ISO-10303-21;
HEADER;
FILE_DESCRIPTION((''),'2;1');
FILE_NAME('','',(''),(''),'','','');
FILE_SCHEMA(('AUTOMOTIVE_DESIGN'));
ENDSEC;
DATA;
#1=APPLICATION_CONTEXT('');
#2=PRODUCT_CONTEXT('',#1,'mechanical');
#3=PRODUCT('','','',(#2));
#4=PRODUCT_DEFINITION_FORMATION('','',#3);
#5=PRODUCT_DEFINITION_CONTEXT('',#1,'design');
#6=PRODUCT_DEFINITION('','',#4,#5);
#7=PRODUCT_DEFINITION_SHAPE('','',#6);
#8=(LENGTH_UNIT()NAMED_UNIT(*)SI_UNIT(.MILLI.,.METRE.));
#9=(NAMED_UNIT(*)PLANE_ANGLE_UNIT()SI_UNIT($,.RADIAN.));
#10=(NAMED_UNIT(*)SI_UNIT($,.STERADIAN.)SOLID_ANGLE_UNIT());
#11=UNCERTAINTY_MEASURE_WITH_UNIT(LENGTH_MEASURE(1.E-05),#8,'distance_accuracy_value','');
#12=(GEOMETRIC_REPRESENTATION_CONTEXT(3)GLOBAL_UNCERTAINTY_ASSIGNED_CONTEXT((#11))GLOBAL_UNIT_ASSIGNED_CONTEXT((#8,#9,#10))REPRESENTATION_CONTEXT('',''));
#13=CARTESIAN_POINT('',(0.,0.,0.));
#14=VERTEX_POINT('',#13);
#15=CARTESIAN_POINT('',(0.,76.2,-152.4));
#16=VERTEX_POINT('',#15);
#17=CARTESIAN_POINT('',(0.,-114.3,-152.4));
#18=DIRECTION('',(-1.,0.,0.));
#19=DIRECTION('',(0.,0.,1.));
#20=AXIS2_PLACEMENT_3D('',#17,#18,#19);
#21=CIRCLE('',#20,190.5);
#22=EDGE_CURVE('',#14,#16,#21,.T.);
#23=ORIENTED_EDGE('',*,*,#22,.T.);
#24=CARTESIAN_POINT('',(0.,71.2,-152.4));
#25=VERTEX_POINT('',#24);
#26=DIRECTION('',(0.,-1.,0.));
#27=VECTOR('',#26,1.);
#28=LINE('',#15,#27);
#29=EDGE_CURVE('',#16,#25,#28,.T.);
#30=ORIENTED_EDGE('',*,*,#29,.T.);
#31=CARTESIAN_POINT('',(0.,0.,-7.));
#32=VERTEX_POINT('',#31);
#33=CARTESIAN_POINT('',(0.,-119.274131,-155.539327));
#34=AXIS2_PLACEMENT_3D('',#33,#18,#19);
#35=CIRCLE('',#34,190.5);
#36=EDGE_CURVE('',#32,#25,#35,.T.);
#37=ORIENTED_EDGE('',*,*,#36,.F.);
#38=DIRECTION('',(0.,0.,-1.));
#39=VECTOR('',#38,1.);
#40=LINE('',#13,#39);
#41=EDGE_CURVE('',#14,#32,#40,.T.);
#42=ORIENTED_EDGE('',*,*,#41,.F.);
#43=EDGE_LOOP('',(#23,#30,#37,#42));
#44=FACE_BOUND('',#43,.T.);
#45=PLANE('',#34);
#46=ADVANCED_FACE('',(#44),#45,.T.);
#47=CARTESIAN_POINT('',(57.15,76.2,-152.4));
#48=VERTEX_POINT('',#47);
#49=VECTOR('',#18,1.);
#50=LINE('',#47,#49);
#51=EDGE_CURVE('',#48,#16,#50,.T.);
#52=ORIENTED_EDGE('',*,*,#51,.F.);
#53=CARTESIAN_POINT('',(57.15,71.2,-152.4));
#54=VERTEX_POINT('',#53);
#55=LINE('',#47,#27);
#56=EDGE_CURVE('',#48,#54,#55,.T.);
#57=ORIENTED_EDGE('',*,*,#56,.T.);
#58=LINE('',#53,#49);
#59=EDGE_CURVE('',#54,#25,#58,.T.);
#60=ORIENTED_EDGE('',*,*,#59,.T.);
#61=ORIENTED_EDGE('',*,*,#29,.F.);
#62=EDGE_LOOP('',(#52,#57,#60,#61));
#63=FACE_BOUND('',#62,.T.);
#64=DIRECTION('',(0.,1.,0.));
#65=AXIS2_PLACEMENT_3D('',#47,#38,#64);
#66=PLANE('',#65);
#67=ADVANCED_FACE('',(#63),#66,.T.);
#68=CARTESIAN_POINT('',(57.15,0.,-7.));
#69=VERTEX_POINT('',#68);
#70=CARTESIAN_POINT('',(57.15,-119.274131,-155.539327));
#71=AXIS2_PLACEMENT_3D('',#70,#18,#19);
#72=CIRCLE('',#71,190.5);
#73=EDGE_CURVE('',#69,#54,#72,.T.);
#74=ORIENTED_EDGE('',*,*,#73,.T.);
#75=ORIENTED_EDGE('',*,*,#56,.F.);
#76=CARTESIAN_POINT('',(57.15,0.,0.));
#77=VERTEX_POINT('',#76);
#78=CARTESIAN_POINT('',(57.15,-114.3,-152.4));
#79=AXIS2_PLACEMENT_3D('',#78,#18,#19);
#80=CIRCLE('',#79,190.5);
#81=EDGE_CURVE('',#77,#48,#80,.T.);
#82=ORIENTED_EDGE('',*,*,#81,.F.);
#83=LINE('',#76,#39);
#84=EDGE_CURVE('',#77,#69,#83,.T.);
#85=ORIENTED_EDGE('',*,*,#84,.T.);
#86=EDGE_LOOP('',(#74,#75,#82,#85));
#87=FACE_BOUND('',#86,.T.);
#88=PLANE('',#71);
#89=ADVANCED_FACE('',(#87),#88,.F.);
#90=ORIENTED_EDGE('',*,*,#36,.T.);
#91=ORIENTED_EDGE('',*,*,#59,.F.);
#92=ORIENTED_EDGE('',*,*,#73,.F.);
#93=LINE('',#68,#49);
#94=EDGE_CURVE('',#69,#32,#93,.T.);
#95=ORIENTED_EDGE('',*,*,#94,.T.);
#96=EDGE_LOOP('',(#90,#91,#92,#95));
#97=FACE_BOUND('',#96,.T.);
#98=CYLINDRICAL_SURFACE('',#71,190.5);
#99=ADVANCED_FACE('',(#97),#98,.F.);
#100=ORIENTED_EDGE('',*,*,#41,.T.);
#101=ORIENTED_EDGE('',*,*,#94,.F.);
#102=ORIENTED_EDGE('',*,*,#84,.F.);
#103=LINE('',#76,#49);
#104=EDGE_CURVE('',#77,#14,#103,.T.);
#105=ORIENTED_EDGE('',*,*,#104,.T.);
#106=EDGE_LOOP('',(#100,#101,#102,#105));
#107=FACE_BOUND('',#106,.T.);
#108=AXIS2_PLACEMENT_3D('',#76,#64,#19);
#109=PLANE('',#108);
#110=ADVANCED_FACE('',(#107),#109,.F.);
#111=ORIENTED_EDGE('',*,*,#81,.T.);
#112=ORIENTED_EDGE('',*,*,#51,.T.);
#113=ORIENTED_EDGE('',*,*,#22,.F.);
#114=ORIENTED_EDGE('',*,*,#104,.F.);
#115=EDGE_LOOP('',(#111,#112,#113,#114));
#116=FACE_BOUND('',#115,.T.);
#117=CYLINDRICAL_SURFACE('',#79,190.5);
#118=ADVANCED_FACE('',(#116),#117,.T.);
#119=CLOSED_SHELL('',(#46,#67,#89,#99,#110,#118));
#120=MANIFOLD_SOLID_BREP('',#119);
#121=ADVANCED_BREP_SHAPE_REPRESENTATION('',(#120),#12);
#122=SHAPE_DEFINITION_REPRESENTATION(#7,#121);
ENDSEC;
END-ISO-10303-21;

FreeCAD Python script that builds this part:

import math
import FreeCAD as App
import Part
import Sketcher

doc = App.newDocument("Part")
body = doc.addObject("PartDesign::Body", "Body")

# Sketch on YZ plane
sketch1 = doc.addObject("Sketcher::SketchObject", "Sketch")
body.addObject(sketch1)
sketch1.AttachmentSupport = (doc.YZ_Plane, [""])
sketch1.MapMode = "FlatFace"
sketch1.addGeometry(Part.LineSegment(App.Vector(71.2, -152.4, 0), App.Vector(76.2, -152.4, 0)), False)
sketch1.addGeometry(Part.ArcOfCircle(Part.Circle(App.Vector(-114.3, -152.4, 0), App.Vector(0, 0, 1), 190.5), math.radians(0), math.radians(53.130102)), False)
sketch1.addGeometry(Part.LineSegment(App.Vector(0, 0, 0), App.Vector(0, -7, 0)), False)
sketch1.addGeometry(Part.ArcOfCircle(Part.Circle(App.Vector(-119.274131, -155.539327, 0), App.Vector(0, 0, 1), 190.5), math.radians(0.944243), math.radians(51.236227)), False)
sketch1.addConstraint(Sketcher.Constraint("Coincident", 0, 2, 1, 1))
sketch1.addConstraint(Sketcher.Constraint("Coincident", 1, 2, 2, 1))
sketch1.addConstraint(Sketcher.Constraint("Coincident", 2, 2, 3, 2))
sketch1.addConstraint(Sketcher.Constraint("Coincident", 3, 1, 0, 1))
sketch1.addConstraint(Sketcher.Constraint("Horizontal", 0))
sketch1.addConstraint(Sketcher.Constraint("Vertical", 2))
sketch1.addConstraint(Sketcher.Constraint("Coincident", 1, 2, -1, 1))
sketch1.addConstraint(Sketcher.Constraint("Equal", 1, 3))
sketch1.addConstraint(Sketcher.Constraint("Horizontal", 1, 3, 0, 2))
sketch1.addConstraint(Sketcher.Constraint("Radius", 1, 190.5))
sketch1.addConstraint(Sketcher.Constraint("DistanceX", 0, 1, 0, 2, 5.0))
sketch1.addConstraint(Sketcher.Constraint("DistanceY", 2, 2, 2, 1, 7.0))
sketch1.addConstraint(Sketcher.Constraint("DistanceX", 1, 3, -1, 1, 114.3))
pad1 = doc.addObject("PartDesign::Pad", "Pad")
body.addObject(pad1)
pad1.Profile = sketch1
pad1.Length = 57.15

doc.recompute()
